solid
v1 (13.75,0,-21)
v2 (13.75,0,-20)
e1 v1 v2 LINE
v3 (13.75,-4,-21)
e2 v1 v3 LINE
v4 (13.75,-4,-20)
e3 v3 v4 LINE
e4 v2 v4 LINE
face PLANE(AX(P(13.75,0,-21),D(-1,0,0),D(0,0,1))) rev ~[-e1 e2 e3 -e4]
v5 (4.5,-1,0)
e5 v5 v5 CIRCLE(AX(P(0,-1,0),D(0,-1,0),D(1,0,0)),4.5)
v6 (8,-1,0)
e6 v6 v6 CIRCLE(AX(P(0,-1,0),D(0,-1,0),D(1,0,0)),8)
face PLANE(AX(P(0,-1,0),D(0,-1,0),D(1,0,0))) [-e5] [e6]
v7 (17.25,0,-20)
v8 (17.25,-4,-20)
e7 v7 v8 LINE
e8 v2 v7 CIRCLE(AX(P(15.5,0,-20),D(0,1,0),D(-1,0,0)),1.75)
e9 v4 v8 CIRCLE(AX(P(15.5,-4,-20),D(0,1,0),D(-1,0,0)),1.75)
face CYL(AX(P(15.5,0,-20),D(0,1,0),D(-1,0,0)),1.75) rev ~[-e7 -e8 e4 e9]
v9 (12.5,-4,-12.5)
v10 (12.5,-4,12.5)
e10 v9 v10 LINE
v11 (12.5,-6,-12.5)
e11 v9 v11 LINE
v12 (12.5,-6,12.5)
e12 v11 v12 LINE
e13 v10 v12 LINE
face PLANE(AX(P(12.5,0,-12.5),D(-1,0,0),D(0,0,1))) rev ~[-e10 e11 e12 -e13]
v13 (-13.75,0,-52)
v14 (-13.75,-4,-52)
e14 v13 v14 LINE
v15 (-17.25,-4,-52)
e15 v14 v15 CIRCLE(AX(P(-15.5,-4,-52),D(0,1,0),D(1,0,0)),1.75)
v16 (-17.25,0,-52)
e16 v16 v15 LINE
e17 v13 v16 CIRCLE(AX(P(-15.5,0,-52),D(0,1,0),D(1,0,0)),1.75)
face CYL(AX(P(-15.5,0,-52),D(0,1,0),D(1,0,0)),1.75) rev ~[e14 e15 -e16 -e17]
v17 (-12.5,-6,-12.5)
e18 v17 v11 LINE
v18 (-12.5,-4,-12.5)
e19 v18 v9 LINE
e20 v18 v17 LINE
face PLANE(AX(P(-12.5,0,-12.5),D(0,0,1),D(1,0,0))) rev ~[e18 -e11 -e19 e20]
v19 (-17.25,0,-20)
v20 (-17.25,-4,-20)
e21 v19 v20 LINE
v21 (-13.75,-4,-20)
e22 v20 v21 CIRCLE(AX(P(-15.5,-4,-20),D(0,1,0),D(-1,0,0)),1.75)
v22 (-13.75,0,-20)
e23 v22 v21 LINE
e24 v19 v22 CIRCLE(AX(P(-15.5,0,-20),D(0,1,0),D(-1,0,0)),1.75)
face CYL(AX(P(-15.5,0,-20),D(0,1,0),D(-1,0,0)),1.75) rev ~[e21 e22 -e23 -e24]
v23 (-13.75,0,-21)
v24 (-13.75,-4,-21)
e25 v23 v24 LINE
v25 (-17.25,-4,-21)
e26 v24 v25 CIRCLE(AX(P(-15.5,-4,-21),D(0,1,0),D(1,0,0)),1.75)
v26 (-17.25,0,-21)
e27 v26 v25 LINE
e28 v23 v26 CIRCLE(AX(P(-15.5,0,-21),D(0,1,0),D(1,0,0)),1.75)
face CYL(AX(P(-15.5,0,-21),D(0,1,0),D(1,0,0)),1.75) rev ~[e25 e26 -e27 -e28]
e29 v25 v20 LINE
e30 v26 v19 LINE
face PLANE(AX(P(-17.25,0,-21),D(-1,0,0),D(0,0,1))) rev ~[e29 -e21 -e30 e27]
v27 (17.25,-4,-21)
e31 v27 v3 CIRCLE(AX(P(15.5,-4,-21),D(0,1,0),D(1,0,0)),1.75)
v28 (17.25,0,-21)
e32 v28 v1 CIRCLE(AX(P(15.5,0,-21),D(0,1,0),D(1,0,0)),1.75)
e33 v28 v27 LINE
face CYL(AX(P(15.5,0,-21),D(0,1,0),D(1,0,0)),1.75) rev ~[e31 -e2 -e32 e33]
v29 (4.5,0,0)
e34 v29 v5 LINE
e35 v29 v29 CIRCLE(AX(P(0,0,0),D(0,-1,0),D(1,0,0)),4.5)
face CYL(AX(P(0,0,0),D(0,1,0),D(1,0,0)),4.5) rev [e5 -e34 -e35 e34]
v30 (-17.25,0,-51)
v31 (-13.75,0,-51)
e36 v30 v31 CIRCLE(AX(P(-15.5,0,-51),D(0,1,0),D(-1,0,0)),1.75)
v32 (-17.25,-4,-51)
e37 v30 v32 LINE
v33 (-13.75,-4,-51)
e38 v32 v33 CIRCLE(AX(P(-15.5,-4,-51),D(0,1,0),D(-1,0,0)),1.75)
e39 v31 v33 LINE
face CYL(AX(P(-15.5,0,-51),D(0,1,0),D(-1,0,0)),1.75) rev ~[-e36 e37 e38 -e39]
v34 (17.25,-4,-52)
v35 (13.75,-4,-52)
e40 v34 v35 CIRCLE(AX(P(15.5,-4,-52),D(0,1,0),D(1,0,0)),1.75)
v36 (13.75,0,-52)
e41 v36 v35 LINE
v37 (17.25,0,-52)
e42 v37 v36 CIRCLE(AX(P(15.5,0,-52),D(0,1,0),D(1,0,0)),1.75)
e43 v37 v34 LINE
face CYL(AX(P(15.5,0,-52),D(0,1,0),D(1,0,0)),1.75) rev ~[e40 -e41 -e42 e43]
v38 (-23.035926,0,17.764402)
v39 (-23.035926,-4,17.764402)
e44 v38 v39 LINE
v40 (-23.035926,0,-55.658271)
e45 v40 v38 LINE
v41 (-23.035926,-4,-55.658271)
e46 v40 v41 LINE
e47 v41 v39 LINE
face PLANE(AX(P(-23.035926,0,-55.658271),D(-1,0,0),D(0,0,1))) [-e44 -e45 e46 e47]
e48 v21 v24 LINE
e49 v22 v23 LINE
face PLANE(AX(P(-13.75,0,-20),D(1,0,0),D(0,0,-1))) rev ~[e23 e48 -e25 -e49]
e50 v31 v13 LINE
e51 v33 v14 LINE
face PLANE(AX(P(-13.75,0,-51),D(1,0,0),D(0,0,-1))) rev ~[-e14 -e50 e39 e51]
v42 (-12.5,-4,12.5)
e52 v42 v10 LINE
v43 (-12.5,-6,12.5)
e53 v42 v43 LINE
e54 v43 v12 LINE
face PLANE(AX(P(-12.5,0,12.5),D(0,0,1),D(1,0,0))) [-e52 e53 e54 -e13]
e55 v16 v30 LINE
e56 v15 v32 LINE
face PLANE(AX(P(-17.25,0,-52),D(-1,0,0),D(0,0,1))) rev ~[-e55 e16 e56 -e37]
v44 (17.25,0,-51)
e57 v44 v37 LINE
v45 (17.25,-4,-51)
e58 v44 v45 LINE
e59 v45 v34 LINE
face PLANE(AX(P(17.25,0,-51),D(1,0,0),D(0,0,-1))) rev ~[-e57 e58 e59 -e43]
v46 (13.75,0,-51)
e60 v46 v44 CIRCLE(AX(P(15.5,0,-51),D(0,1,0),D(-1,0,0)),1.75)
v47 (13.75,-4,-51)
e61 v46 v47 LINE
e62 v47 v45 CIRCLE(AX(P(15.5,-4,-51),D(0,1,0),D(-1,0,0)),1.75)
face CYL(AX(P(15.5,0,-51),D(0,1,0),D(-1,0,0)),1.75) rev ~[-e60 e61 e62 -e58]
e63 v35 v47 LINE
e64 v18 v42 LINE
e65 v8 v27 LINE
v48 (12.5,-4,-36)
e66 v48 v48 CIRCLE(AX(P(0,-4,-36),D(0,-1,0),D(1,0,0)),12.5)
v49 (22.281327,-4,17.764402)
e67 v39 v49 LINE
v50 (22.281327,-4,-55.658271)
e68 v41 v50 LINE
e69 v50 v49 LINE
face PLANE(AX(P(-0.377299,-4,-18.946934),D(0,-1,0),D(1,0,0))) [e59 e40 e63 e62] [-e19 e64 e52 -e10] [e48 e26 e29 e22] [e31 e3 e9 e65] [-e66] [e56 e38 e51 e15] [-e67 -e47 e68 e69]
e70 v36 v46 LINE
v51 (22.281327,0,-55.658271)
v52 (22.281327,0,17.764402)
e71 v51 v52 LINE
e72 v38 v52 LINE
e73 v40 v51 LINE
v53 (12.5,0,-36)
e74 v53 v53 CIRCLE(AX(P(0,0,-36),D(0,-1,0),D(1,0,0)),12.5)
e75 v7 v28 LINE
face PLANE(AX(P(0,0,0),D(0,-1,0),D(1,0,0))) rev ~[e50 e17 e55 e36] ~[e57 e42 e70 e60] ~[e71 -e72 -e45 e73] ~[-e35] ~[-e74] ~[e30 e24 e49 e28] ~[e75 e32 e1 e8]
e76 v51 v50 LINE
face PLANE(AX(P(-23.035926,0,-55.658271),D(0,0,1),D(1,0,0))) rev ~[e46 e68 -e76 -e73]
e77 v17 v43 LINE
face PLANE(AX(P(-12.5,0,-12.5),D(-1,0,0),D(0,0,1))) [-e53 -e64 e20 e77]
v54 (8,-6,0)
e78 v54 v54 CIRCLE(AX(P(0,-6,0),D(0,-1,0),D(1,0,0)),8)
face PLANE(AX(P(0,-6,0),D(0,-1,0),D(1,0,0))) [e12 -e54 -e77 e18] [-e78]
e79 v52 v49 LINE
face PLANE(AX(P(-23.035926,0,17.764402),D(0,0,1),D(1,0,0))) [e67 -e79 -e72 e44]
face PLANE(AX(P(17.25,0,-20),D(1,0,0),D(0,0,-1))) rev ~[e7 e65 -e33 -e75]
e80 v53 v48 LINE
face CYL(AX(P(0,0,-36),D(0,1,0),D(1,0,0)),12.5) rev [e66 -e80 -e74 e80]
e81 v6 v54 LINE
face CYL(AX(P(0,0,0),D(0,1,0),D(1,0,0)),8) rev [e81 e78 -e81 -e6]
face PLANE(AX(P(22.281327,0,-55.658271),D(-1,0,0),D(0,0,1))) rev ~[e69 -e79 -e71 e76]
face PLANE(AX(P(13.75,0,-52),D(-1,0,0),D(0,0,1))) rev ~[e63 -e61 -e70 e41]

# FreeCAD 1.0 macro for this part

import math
import FreeCAD as App
import Part
import Sketcher

V = App.Vector


def add_polygon(sketch, points):
    """Adds a closed chain of lines whose ends are joined by coincident constraints."""
    first, n = sketch.GeometryCount, len(points)
    for a, b in zip(points, points[1:] + points[:1]):
        sketch.addGeometry(Part.LineSegment(App.Vector(*a, 0), App.Vector(*b, 0)), False)
    for i in range(n):
        sketch.addConstraint(Sketcher.Constraint("Coincident", first + i, 2, first + (i + 1) % n, 1))

doc = App.newDocument("Part")
body = doc.addObject("PartDesign::Body", "Body")

sketch1 = body.newObject("Sketcher::SketchObject", "Sketch")
sketch1.AttachmentSupport = (doc.getObject("XZ_Plane"), [""])
sketch1.MapMode = "FlatFace"
add_polygon(sketch1, [(-23, 17.8), (-23, -55.7), (22.3, -55.7), (22.3, 17.8)])
sketch1.addGeometry(Part.LineSegment(V(-13.8, -51, 0), V(-13.8, -52, 0)), False)
sketch1.addGeometry(Part.ArcOfCircle(Part.Circle(V(-15.5, -52, 0), V(0, 0, 1), 1.8), math.radians(180), math.radians(360)), False)
sketch1.addGeometry(Part.LineSegment(V(-17.2, -52, 0), V(-17.2, -51, 0)), False)
sketch1.addGeometry(Part.ArcOfCircle(Part.Circle(V(-15.5, -51, 0), V(0, 0, 1), 1.8), math.radians(0), math.radians(180)), False)
sketch1.addGeometry(Part.ArcOfCircle(Part.Circle(V(15.5, -51, 0), V(0, 0, 1), 1.8), math.radians(0), math.radians(180)), False)
sketch1.addGeometry(Part.LineSegment(V(17.2, -51, 0), V(17.2, -52, 0)), False)
sketch1.addGeometry(Part.ArcOfCircle(Part.Circle(V(15.5, -52, 0), V(0, 0, 1), 1.8), math.radians(180), math.radians(360)), False)
sketch1.addGeometry(Part.LineSegment(V(13.8, -52, 0), V(13.8, -51, 0)), False)
sketch1.addGeometry(Part.Circle(V(0, -36, 0), V(0, 0, 1), 12.5), False)
sketch1.addGeometry(Part.LineSegment(V(-17.2, -21, 0), V(-17.2, -20, 0)), False)
sketch1.addGeometry(Part.ArcOfCircle(Part.Circle(V(-15.5, -20, 0), V(0, 0, 1), 1.8), math.radians(0), math.radians(180)), False)
sketch1.addGeometry(Part.LineSegment(V(-13.8, -20, 0), V(-13.8, -21, 0)), False)
sketch1.addGeometry(Part.ArcOfCircle(Part.Circle(V(-15.5, -21, 0), V(0, 0, 1), 1.8), math.radians(180), math.radians(360)), False)
sketch1.addGeometry(Part.ArcOfCircle(Part.Circle(V(15.5, -21, 0), V(0, 0, 1), 1.8), math.radians(180), math.radians(360)), False)
sketch1.addGeometry(Part.LineSegment(V(13.8, -21, 0), V(13.8, -20, 0)), False)
sketch1.addGeometry(Part.ArcOfCircle(Part.Circle(V(15.5, -20, 0), V(0, 0, 1), 1.8), math.radians(0), math.radians(180)), False)
sketch1.addGeometry(Part.LineSegment(V(17.2, -20, 0), V(17.2, -21, 0)), False)
add_polygon(sketch1, [(12.5, -12.5), (-12.5, -12.5), (-12.5, 12.5), (12.5, 12.5)])
sketch1.addConstraint([
    Sketcher.Constraint("Tangent", 4, 2, 5, 2),
    Sketcher.Constraint("Tangent", 5, 1, 6, 1),
    Sketcher.Constraint("Tangent", 6, 2, 7, 2),
    Sketcher.Constraint("Tangent", 7, 1, 4, 1),
    Sketcher.Constraint("Tangent", 8, 1, 9, 1),
    Sketcher.Constraint("Tangent", 9, 2, 10, 2),
    Sketcher.Constraint("Tangent", 10, 1, 11, 1),
    Sketcher.Constraint("Tangent", 11, 2, 8, 2),
    Sketcher.Constraint("Tangent", 13, 2, 14, 2),
    Sketcher.Constraint("Tangent", 14, 1, 15, 1),
    Sketcher.Constraint("Tangent", 15, 2, 16, 2),
    Sketcher.Constraint("Tangent", 16, 1, 13, 1),
    Sketcher.Constraint("Tangent", 17, 1, 18, 1),
    Sketcher.Constraint("Tangent", 18, 2, 19, 2),
    Sketcher.Constraint("Tangent", 19, 1, 20, 1),
    Sketcher.Constraint("Tangent", 20, 2, 17, 2),
    Sketcher.Constraint("Vertical", 0),
    Sketcher.Constraint("Horizontal", 1),
    Sketcher.Constraint("Vertical", 2),
    Sketcher.Constraint("Horizontal", 3),
    Sketcher.Constraint("Vertical", 4),
    Sketcher.Constraint("Vertical", 6),
    Sketcher.Constraint("Vertical", 9),
    Sketcher.Constraint("Vertical", 11),
    Sketcher.Constraint("Vertical", 13),
    Sketcher.Constraint("Vertical", 15),
    Sketcher.Constraint("Vertical", 18),
    Sketcher.Constraint("Vertical", 20),
    Sketcher.Constraint("Horizontal", 21),
    Sketcher.Constraint("Vertical", 22),
    Sketcher.Constraint("Horizontal", 23),
    Sketcher.Constraint("Vertical", 24),
    Sketcher.Constraint("Equal", 7, 8),
    Sketcher.Constraint("Equal", 10, 14),
    Sketcher.Constraint("Equal", 16, 17),
    Sketcher.Constraint("Symmetric", 21, 2, 23, 2, -1, 1),
    Sketcher.Constraint("Symmetric", 7, 3, 8, 3, -2),
    Sketcher.Constraint("Symmetric", 16, 3, 17, 3, -2),
    Sketcher.Constraint("PointOnObject", 12, 3, -2),
    Sketcher.Constraint("Horizontal", 5, 3, 10, 3),
    Sketcher.Constraint("Horizontal", 14, 3, 19, 3),
    Sketcher.Constraint("Vertical", 7, 3, 14, 3),
    Sketcher.Constraint("Equal", 11, 13),
    Sketcher.Constraint("Equal", 23, 22),
    Sketcher.Constraint("Diameter", 12, 25.0),
    Sketcher.Constraint("DistanceX", 21, 2, 21, 1, 25.0),
    Sketcher.Constraint("DistanceY", 4, 2, 4, 1, 1.0),
    Sketcher.Constraint("Radius", 5, 1.75),
    Sketcher.Constraint("DistanceY", 5, 3, -1, 1, 52.0),
    Sketcher.Constraint("DistanceY", 12, 3, -1, 1, 36.0),
    Sketcher.Constraint("DistanceY", 14, 3, -1, 1, 20.0),
    Sketcher.Constraint("DistanceX", 7, 3, 8, 3, 31.0),
    Sketcher.Constraint("DistanceX", 1, 1, 1, 2, 45.317253),
    Sketcher.Constraint("DistanceY", 0, 2, 0, 1, 73.422673),
    Sketcher.Constraint("DistanceY", 0, 2, -1, 1, 55.658271),
    Sketcher.Constraint("DistanceX", 0, 2, -1, 1, 23.035926),
])
pad1 = body.newObject("PartDesign::Pad", "Pad")
pad1.Profile = sketch1
pad1.Length = 4

sketch2 = body.newObject("Sketcher::SketchObject", "Sketch001")
sketch2.AttachmentSupport = (doc.getObject("XZ_Plane"), [""])
sketch2.MapMode = "FlatFace"
add_polygon(sketch2, [(-12, 12), (-12, -12), (12, -12), (12, 12)])
sketch2.addGeometry(Part.Circle(V(0, 0, 0), V(0, 0, 1), 8), False)
sketch2.addConstraint([
    Sketcher.Constraint("Vertical", 0),
    Sketcher.Constraint("Horizontal", 1),
    Sketcher.Constraint("Vertical", 2),
    Sketcher.Constraint("Horizontal", 3),
    Sketcher.Constraint("Coincident", 4, 3, -1, 1),
    Sketcher.Constraint("Symmetric", 0, 2, 2, 2, -1, 1),
    Sketcher.Constraint("Equal", 3, 0),
    Sketcher.Constraint("Diameter", 4, 16.0),
    Sketcher.Constraint("DistanceX", 1, 1, 1, 2, 25.0),
])
pad2 = body.newObject("PartDesign::Pad", "Pad001")
pad2.Profile = sketch2
pad2.Length = 6

sketch3 = body.newObject("Sketcher::SketchObject", "Sketch002")
sketch3.AttachmentSupport = (doc.getObject("XZ_Plane"), [""])
sketch3.MapMode = "FlatFace"
sketch3.addGeometry([
    Part.Circle(V(0, 0, 0), V(0, 0, 1), 8),
    Part.Circle(V(0, 0, 0), V(0, 0, 1), 4.5),
], False)
sketch3.addConstraint([
    Sketcher.Constraint("Coincident", 0, 3, -1, 1),
    Sketcher.Constraint("Coincident", 1, 3, -1, 1),
    Sketcher.Constraint("Diameter", 0, 16.0),
    Sketcher.Constraint("Diameter", 1, 9.0),
])
pad3 = body.newObject("PartDesign::Pad", "Pad002")
pad3.Profile = sketch3
pad3.Length = 1

doc.recompute()
